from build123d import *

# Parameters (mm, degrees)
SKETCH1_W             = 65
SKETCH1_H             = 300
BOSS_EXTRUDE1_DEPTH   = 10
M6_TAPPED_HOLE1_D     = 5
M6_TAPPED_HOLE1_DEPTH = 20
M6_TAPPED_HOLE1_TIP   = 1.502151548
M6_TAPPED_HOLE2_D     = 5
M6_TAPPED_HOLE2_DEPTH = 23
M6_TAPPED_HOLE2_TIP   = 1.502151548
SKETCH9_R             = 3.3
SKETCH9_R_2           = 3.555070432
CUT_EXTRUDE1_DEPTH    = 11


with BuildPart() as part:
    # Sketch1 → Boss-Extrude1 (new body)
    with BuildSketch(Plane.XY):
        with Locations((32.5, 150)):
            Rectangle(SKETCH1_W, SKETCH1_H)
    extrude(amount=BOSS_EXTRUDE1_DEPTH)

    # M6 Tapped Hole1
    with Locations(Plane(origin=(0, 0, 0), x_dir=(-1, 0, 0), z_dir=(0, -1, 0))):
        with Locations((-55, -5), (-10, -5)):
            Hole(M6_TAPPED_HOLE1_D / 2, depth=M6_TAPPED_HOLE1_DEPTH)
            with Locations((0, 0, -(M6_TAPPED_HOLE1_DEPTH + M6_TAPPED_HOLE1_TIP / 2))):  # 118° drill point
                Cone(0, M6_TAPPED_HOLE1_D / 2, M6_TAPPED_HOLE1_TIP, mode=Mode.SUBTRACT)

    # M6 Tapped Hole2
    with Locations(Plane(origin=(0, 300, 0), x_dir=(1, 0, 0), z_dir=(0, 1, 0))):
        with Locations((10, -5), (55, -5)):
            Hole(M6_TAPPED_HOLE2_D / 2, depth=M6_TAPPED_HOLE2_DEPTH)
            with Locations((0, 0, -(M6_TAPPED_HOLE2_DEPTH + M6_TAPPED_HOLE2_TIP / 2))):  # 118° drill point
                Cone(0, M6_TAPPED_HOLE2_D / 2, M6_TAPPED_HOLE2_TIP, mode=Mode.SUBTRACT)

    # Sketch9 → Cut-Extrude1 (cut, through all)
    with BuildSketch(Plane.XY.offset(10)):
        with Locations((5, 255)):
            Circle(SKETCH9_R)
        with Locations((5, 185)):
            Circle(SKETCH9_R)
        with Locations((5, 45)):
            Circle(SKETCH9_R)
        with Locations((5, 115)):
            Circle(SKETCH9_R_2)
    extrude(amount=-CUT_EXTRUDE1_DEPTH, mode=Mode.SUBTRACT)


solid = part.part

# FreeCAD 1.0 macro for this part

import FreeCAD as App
import Part
import Sketcher
from FreeCAD import Vector

doc = App.newDocument("Part")
params = doc.addObject("Spreadsheet::Sheet", "Params")
for row, (alias, value) in enumerate([
    ("sketch1_width", "65 mm"),
    ("sketch1_height", "300 mm"),
    ("pad1_length", "10 mm"),
    ("sketch2_diameter", "5 mm"),
    ("hole_diameter", "5 mm"),
    ("hole_depth", "20 mm"),
    ("sketch3_diameter", "5 mm"),
    ("hole2_diameter", "5 mm"),
    ("hole2_depth", "23 mm"),
    ("sketch4_diameter", "6.6 mm"),
], start=1):
    params.set(f"A{row}", alias)
    params.set(f"B{row}", "=" + value)
    params.setAlias(f"B{row}", alias)

body = doc.addObject("PartDesign::Body", "Body")

# Sketch on XY plane
sketch1 = body.newObject("Sketcher::SketchObject", "Sketch")
sketch1.AttachmentSupport = (doc.getObject("XY_Plane"), [""])
sketch1.MapMode = "FlatFace"
sketch1.addGeometry(Part.LineSegment(Vector(0, 300, 0), Vector(0, 0, 0)), False)
sketch1.addGeometry(Part.LineSegment(Vector(0, 0, 0), Vector(65, 0, 0)), False)
sketch1.addGeometry(Part.LineSegment(Vector(65, 0, 0), Vector(65, 300, 0)), False)
sketch1.addGeometry(Part.LineSegment(Vector(65, 300, 0), Vector(0, 300, 0)), False)
sketch1.addConstraint(Sketcher.Constraint("Coincident", 0, 2, 1, 1))
sketch1.addConstraint(Sketcher.Constraint("Coincident", 1, 2, 2, 1))
sketch1.addConstraint(Sketcher.Constraint("Coincident", 2, 2, 3, 1))
sketch1.addConstraint(Sketcher.Constraint("Coincident", 3, 2, 0, 1))
sketch1.addConstraint(Sketcher.Constraint("Vertical", 0))
sketch1.addConstraint(Sketcher.Constraint("Horizontal", 1))
sketch1.addConstraint(Sketcher.Constraint("Vertical", 2))
sketch1.addConstraint(Sketcher.Constraint("Horizontal", 3))
sketch1.addConstraint(Sketcher.Constraint("Coincident", 0, 2, -1, 1))
sketch1.addConstraint(Sketcher.Constraint("DistanceX", 1, 1, 1, 2, 65.0))
sketch1.addConstraint(Sketcher.Constraint("DistanceY", 0, 2, 0, 1, 300.0))
sketch1.setExpression("Constraints[9]", "Params.sketch1_width")
sketch1.setExpression("Constraints[10]", "Params.sketch1_height")
pad1 = body.newObject("PartDesign::Pad", "Pad")
pad1.Profile = sketch1
pad1.setExpression("Length", "Params.pad1_length")

# Sketch on XZ plane
sketch2 = body.newObject("Sketcher::SketchObject", "Sketch001")
sketch2.AttachmentSupport = (doc.getObject("XZ_Plane"), [""])
sketch2.MapMode = "FlatFace"
sketch2.addGeometry(Part.Circle(Vector(55, 5, 0), Vector(0, 0, 1), 2.5), False)
sketch2.addGeometry(Part.Circle(Vector(10, 5, 0), Vector(0, 0, 1), 2.5), False)
sketch2.addConstraint(Sketcher.Constraint("Equal", 0, 1))
sketch2.addConstraint(Sketcher.Constraint("Horizontal", 0, 3, 1, 3))
sketch2.addConstraint(Sketcher.Constraint("Diameter", 0, 5.0))
sketch2.addConstraint(Sketcher.Constraint("DistanceX", -1, 1, 0, 3, 55.0))
sketch2.addConstraint(Sketcher.Constraint("DistanceY", -1, 1, 0, 3, 5.0))
sketch2.addConstraint(Sketcher.Constraint("DistanceX", -1, 1, 1, 3, 10.0))
sketch2.setExpression("Constraints[2]", "Params.sketch2_diameter")
doc.recompute()
hole = body.newObject("PartDesign::Hole", "Hole")
hole.Profile = sketch2
hole.ThreadType = "None"
hole.setExpression("Diameter", "Params.hole_diameter")
hole.DepthType = "Dimension"
hole.setExpression("Depth", "Params.hole_depth")
hole.DrillPoint = "Angled"
hole.DrillPointAngle = 118

# Sketch on XZ plane
sketch3 = body.newObject("Sketcher::SketchObject", "Sketch002")
sketch3.AttachmentSupport = (doc.getObject("XZ_Plane"), [""])
sketch3.MapMode = "FlatFace"
sketch3.AttachmentOffset = App.Placement(Vector(0, 0, -300), App.Rotation())
sketch3.addGeometry(Part.Circle(Vector(10, 5, 0), Vector(0, 0, 1), 2.5), False)
sketch3.addGeometry(Part.Circle(Vector(55, 5, 0), Vector(0, 0, 1), 2.5), False)
sketch3.addConstraint(Sketcher.Constraint("Equal", 0, 1))
sketch3.addConstraint(Sketcher.Constraint("Horizontal", 0, 3, 1, 3))
sketch3.addConstraint(Sketcher.Constraint("Diameter", 0, 5.0))
sketch3.addConstraint(Sketcher.Constraint("DistanceX", -1, 1, 0, 3, 10.0))
sketch3.addConstraint(Sketcher.Constraint("DistanceY", -1, 1, 0, 3, 5.0))
sketch3.addConstraint(Sketcher.Constraint("DistanceX", -1, 1, 1, 3, 55.0))
sketch3.setExpression("Constraints[2]", "Params.sketch3_diameter")
doc.recompute()
hole2 = body.newObject("PartDesign::Hole", "Hole001")
hole2.Profile = sketch3
hole2.ThreadType = "None"
hole2.setExpression("Diameter", "Params.hole2_diameter")
hole2.DepthType = "Dimension"
hole2.setExpression("Depth", "Params.hole2_depth")
hole2.DrillPoint = "Angled"
hole2.DrillPointAngle = 118
hole2.Reversed = True

# Sketch on XY plane
sketch4 = body.newObject("Sketcher::SketchObject", "Sketch003")
sketch4.AttachmentSupport = (doc.getObject("XY_Plane"), [""])
sketch4.MapMode = "FlatFace"
sketch4.AttachmentOffset = App.Placement(Vector(0, 0, 10), App.Rotation())
sketch4.addGeometry(Part.Circle(Vector(5, 255, 0), Vector(0, 0, 1), 3.3), False)
sketch4.addGeometry(Part.Circle(Vector(5, 185, 0), Vector(0, 0, 1), 3.3), False)
sketch4.addGeometry(Part.Circle(Vector(5, 45, 0), Vector(0, 0, 1), 3.3), False)
sketch4.addGeometry(Part.Circle(Vector(5, 115, 0), Vector(0, 0, 1), 3.6), False)
sketch4.addConstraint(Sketcher.Constraint("Equal", 0, 1))
sketch4.addConstraint(Sketcher.Constraint("Equal", 1, 2))
sketch4.addConstraint(Sketcher.Constraint("Vertical", 0, 3, 1, 3))
sketch4.addConstraint(Sketcher.Constraint("Vertical", 1, 3, 2, 3))
sketch4.addConstraint(Sketcher.Constraint("Vertical", 2, 3, 3, 3))
sketch4.addConstraint(Sketcher.Constraint("Diameter", 0, 6.6))
sketch4.addConstraint(Sketcher.Constraint("DistanceX", -1, 1, 0, 3, 5.0))
sketch4.addConstraint(Sketcher.Constraint("DistanceY", -1, 1, 0, 3, 255.0))
sketch4.addConstraint(Sketcher.Constraint("DistanceY", -1, 1, 1, 3, 185.0))
sketch4.addConstraint(Sketcher.Constraint("DistanceY", -1, 1, 2, 3, 45.0))
sketch4.addConstraint(Sketcher.Constraint("DistanceY", -1, 1, 3, 3, 115.0))
sketch4.addConstraint(Sketcher.Constraint("Diameter", 3, 7.110141))
sketch4.setExpression("Constraints[5]", "Params.sketch4_diameter")
pocket1 = body.newObject("PartDesign::Pocket", "Pocket")
pocket1.Profile = sketch4
pocket1.Type = "ThroughAll"

doc.recompute()
